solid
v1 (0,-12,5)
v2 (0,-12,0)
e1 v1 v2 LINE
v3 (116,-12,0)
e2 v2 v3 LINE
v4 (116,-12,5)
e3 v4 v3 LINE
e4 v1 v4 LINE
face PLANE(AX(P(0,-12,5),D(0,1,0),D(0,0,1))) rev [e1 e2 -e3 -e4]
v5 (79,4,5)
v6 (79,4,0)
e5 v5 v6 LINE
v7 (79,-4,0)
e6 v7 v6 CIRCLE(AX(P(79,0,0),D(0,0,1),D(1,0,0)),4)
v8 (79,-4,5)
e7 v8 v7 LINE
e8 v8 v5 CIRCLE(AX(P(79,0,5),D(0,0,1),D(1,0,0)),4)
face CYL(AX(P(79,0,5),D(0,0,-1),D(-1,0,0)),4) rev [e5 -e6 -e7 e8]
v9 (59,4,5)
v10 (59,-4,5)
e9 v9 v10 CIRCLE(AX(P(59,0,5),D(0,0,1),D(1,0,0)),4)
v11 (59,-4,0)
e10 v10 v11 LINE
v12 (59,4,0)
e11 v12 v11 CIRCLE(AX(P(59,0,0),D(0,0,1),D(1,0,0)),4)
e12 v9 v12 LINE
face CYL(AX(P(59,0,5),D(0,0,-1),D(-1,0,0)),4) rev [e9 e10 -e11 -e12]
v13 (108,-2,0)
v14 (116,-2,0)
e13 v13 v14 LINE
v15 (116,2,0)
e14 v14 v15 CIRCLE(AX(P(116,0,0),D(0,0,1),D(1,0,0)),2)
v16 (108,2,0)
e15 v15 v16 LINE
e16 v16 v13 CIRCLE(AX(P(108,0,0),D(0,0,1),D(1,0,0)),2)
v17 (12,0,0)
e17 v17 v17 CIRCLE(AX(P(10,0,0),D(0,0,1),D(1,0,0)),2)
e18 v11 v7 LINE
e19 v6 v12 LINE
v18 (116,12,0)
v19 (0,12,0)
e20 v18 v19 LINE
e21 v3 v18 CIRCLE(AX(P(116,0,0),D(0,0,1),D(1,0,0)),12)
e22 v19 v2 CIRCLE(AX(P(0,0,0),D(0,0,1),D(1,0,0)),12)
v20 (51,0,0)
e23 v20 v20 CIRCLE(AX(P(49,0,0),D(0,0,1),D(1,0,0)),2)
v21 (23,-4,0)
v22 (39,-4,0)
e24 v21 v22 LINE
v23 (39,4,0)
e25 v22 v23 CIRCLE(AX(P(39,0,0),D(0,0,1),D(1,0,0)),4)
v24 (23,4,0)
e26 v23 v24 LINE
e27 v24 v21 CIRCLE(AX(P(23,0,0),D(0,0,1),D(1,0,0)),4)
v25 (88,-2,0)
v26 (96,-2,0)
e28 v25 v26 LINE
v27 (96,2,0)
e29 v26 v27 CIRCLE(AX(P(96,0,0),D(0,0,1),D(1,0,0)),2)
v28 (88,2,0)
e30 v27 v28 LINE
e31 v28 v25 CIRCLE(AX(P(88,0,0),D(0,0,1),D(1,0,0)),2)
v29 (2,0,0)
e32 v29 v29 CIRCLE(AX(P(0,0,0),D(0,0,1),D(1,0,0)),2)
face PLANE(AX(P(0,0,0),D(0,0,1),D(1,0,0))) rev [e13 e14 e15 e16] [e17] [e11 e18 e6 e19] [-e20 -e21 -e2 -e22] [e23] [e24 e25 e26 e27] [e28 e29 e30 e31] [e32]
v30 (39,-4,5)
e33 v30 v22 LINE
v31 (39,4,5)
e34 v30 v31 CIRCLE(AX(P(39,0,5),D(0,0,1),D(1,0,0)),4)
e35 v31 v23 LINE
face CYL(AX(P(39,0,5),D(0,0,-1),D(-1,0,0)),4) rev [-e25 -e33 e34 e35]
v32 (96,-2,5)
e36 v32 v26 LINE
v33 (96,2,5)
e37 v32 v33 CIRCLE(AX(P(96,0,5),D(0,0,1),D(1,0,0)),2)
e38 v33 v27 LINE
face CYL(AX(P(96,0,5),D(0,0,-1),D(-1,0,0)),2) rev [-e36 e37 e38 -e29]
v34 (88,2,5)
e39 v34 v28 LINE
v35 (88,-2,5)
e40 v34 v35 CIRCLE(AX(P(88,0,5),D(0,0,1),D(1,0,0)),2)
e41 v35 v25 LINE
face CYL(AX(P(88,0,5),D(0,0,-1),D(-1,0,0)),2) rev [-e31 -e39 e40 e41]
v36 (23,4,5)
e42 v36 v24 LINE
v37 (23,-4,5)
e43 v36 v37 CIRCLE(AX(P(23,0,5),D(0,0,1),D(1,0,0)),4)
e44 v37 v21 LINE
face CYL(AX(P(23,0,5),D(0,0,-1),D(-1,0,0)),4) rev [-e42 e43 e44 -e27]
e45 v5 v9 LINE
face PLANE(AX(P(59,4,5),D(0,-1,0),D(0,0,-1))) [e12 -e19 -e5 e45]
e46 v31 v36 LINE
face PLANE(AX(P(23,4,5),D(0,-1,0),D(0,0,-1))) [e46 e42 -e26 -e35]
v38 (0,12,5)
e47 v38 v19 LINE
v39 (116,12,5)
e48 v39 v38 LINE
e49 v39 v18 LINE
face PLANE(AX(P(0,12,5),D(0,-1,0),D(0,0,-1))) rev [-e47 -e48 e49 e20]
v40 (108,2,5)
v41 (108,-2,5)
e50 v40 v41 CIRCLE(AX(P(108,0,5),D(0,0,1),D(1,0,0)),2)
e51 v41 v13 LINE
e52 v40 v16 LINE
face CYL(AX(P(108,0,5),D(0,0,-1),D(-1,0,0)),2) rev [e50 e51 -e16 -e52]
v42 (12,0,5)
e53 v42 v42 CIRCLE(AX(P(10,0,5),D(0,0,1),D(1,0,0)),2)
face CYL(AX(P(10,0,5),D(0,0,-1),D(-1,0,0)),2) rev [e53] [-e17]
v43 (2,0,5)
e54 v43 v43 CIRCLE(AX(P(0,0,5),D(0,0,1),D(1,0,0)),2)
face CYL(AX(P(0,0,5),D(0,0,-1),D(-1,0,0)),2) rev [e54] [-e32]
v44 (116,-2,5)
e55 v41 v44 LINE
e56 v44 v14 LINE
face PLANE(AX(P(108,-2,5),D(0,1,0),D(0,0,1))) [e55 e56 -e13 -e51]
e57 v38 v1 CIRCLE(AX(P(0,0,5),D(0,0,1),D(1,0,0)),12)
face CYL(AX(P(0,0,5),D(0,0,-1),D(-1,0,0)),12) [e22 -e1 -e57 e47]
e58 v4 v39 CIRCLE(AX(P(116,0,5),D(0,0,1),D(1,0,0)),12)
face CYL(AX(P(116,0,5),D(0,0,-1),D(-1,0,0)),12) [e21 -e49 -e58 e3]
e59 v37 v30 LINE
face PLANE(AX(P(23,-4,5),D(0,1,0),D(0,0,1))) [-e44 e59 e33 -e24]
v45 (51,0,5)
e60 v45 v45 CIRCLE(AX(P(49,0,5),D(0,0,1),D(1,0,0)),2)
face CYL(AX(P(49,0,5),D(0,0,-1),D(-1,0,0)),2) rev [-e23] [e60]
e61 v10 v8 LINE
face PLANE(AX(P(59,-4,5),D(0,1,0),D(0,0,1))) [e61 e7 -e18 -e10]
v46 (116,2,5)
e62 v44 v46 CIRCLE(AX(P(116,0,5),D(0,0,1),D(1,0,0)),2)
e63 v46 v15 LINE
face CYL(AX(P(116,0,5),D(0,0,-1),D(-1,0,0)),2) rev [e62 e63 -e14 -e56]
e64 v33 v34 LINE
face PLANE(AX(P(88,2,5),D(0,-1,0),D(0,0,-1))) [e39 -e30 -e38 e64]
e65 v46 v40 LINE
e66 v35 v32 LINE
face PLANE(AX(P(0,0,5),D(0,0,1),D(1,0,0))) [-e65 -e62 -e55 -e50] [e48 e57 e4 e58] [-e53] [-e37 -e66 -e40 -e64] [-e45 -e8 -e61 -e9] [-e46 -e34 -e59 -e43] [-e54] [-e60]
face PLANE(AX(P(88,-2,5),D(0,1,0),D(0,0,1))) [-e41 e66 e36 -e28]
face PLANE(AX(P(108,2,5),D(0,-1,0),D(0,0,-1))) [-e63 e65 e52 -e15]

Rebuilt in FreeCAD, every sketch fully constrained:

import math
import FreeCAD as App
import Part
import Sketcher

V = App.Vector
Q = App.Units.Quantity

doc = App.newDocument("Part")
params = doc.addObject("Spreadsheet::Sheet", "Params")
for row, (alias, value) in enumerate([
    ("sketch1_diameter", "4 mm"),
    ("sketch1_radius", "12 mm"),
    ("sketch1_radius2", "4 mm"),
    ("sketch1_width", "116 mm"),
    ("sketch1_width2", "8 mm"),
    ("pad1_length", "5 mm"),
], start=1):
    params.set(f"A{row}", alias)
    params.set(f"B{row}", "=" + value)
    params.setAlias(f"B{row}", alias)

body = doc.addObject("PartDesign::Body", "Body")

# Sketch on XY plane
sketch1 = body.newObject("Sketcher::SketchObject", "Sketch")
sketch1.AttachmentSupport = (doc.getObject("XY_Plane"), [""])
sketch1.MapMode = "FlatFace"
sketch1.addGeometry(Part.LineSegment(V(116, 12, 0), V(0, 12, 0)), False)
sketch1.addGeometry(Part.ArcOfCircle(Part.Circle(V(0, 0, 0), V(0, 0, 1), 12), math.radians(90), math.radians(270)), False)
sketch1.addGeometry(Part.LineSegment(V(0, -12, 0), V(116, -12, 0)), False)
sketch1.addGeometry(Part.ArcOfCircle(Part.Circle(V(116, 0, 0), V(0, 0, 1), 12), math.radians(-90), math.radians(90)), False)
sketch1.addGeometry(Part.LineSegment(V(108, 2, 0), V(116, 2, 0)), False)
sketch1.addGeometry(Part.ArcOfCircle(Part.Circle(V(116, 0, 0), V(0, 0, 1), 2), math.radians(-90), math.radians(90)), False)
sketch1.addGeometry(Part.LineSegment(V(116, -2, 0), V(108, -2, 0)), False)
sketch1.addGeometry(Part.ArcOfCircle(Part.Circle(V(108, 0, 0), V(0, 0, 1), 2), math.radians(90), math.radians(270)), False)
sketch1.addGeometry(Part.LineSegment(V(88, 2, 0), V(96, 2, 0)), False)
sketch1.addGeometry(Part.ArcOfCircle(Part.Circle(V(96, 0, 0), V(0, 0, 1), 2), math.radians(-90), math.radians(90)), False)
sketch1.addGeometry(Part.LineSegment(V(96, -2, 0), V(88, -2, 0)), False)
sketch1.addGeometry(Part.ArcOfCircle(Part.Circle(V(88, 0, 0), V(0, 0, 1), 2), math.radians(90), math.radians(270)), False)
sketch1.addGeometry(Part.LineSegment(V(59, 4, 0), V(79, 4, 0)), False)
sketch1.addGeometry(Part.ArcOfCircle(Part.Circle(V(79, 0, 0), V(0, 0, 1), 4), math.radians(-90), math.radians(90)), False)
sketch1.addGeometry(Part.LineSegment(V(79, -4, 0), V(59, -4, 0)), False)
sketch1.addGeometry(Part.ArcOfCircle(Part.Circle(V(59, 0, 0), V(0, 0, 1), 4), math.radians(90), math.radians(270)), False)
sketch1.addGeometry(Part.Circle(V(49, 0, 0), V(0, 0, 1), 2), False)
sketch1.addGeometry(Part.LineSegment(V(23, 4, 0), V(39, 4, 0)), False)
sketch1.addGeometry(Part.ArcOfCircle(Part.Circle(V(39, 0, 0), V(0, 0, 1), 4), math.radians(-90), math.radians(90)), False)
sketch1.addGeometry(Part.LineSegment(V(39, -4, 0), V(23, -4, 0)), False)
sketch1.addGeometry(Part.ArcOfCircle(Part.Circle(V(23, 0, 0), V(0, 0, 1), 4), math.radians(90), math.radians(270)), False)
sketch1.addGeometry(Part.Circle(V(10, 0, 0), V(0, 0, 1), 2), False)
sketch1.addGeometry(Part.Circle(V(0, 0, 0), V(0, 0, 1), 2), False)
sketch1.addConstraint(Sketcher.Constraint("Tangent", 0, 2, 1, 1))
sketch1.addConstraint(Sketcher.Constraint("Tangent", 1, 2, 2, 1))
sketch1.addConstraint(Sketcher.Constraint("Tangent", 2, 2, 3, 1))
sketch1.addConstraint(Sketcher.Constraint("Tangent", 3, 2, 0, 1))
sketch1.addConstraint(Sketcher.Constraint("Tangent", 4, 2, 5, 2))
sketch1.addConstraint(Sketcher.Constraint("Tangent", 5, 1, 6, 1))
sketch1.addConstraint(Sketcher.Constraint("Tangent", 6, 2, 7, 2))
sketch1.addConstraint(Sketcher.Constraint("Tangent", 7, 1, 4, 1))
sketch1.addConstraint(Sketcher.Constraint("Tangent", 8, 2, 9, 2))
sketch1.addConstraint(Sketcher.Constraint("Tangent", 9, 1, 10, 1))
sketch1.addConstraint(Sketcher.Constraint("Tangent", 10, 2, 11, 2))
sketch1.addConstraint(Sketcher.Constraint("Tangent", 11, 1, 8, 1))
sketch1.addConstraint(Sketcher.Constraint("Tangent", 12, 2, 13, 2))
sketch1.addConstraint(Sketcher.Constraint("Tangent", 13, 1, 14, 1))
sketch1.addConstraint(Sketcher.Constraint("Tangent", 14, 2, 15, 2))
sketch1.addConstraint(Sketcher.Constraint("Tangent", 15, 1, 12, 1))
sketch1.addConstraint(Sketcher.Constraint("Tangent", 17, 2, 18, 2))
sketch1.addConstraint(Sketcher.Constraint("Tangent", 18, 1, 19, 1))
sketch1.addConstraint(Sketcher.Constraint("Tangent", 19, 2, 20, 2))
sketch1.addConstraint(Sketcher.Constraint("Tangent", 20, 1, 17, 1))
sketch1.addConstraint(Sketcher.Constraint("Horizontal", 0))
sketch1.addConstraint(Sketcher.Constraint("Horizontal", 2))
sketch1.addConstraint(Sketcher.Constraint("Horizontal", 4))
sketch1.addConstraint(Sketcher.Constraint("Horizontal", 6))
sketch1.addConstraint(Sketcher.Constraint("Horizontal", 8))
sketch1.addConstraint(Sketcher.Constraint("Horizontal", 10))
sketch1.addConstraint(Sketcher.Constraint("Horizontal", 12))
sketch1.addConstraint(Sketcher.Constraint("Horizontal", 14))
sketch1.addConstraint(Sketcher.Constraint("Horizontal", 17))
sketch1.addConstraint(Sketcher.Constraint("Horizontal", 19))
sketch1.addConstraint(Sketcher.Constraint("Coincident", 1, 3, -1, 1))
sketch1.addConstraint(Sketcher.Constraint("Coincident", 22, 3, -1, 1))
sketch1.addConstraint(Sketcher.Constraint("Coincident", 5, 3, 3, 3))
sketch1.addConstraint(Sketcher.Constraint("Equal", 7, 9))
sketch1.addConstraint(Sketcher.Constraint("Equal", 11, 16))
sketch1.addConstraint(Sketcher.Constraint("Equal", 15, 18))
sketch1.addConstraint(Sketcher.Constraint("Equal", 16, 21))
sketch1.addConstraint(Sketcher.Constraint("Equal", 21, 22))
sketch1.addConstraint(Sketcher.Constraint("PointOnObject", 9, 3, -1))
sketch1.addConstraint(Sketcher.Constraint("PointOnObject", 13, 3, -1))
sketch1.addConstraint(Sketcher.Constraint("PointOnObject", 16, 3, -1))
sketch1.addConstraint(Sketcher.Constraint("PointOnObject", 18, 3, -1))
sketch1.addConstraint(Sketcher.Constraint("PointOnObject", 21, 3, -1))
sketch1.addConstraint(Sketcher.Constraint("Equal", 6, 8))
sketch1.addConstraint(Sketcher.Constraint("Diameter", 16, Q("4 mm")))
sketch1.addConstraint(Sketcher.Constraint("Radius", 1, Q("12 mm")))
sketch1.addConstraint(Sketcher.Constraint("Radius", 13, Q("4 mm")))
sketch1.addConstraint(Sketcher.Constraint("DistanceX", 0, 2, 0, 1, Q("116 mm")))
sketch1.addConstraint(Sketcher.Constraint("DistanceX", 4, 1, 4, 2, Q("8 mm")))
sketch1.addConstraint(Sketcher.Constraint("DistanceX", 12, 1, 12, 2, Q("20 mm")))
sketch1.addConstraint(Sketcher.Constraint("DistanceX", 17, 1, 17, 2, Q("16 mm")))
sketch1.addConstraint(Sketcher.Constraint("DistanceX", -1, 1, 9, 3, Q("96 mm")))
sketch1.addConstraint(Sketcher.Constraint("DistanceX", -1, 1, 13, 3, Q("79 mm")))
sketch1.addConstraint(Sketcher.Constraint("DistanceX", -1, 1, 16, 3, Q("49 mm")))
sketch1.addConstraint(Sketcher.Constraint("DistanceX", -1, 1, 18, 3, Q("39 mm")))
sketch1.addConstraint(Sketcher.Constraint("DistanceX", -1, 1, 21, 3, Q("10 mm")))
sketch1.setExpression("Constraints[44]", "Params.sketch1_diameter")
sketch1.setExpression("Constraints[45]", "Params.sketch1_radius")
sketch1.setExpression("Constraints[46]", "Params.sketch1_radius2")
sketch1.setExpression("Constraints[47]", "Params.sketch1_width")
sketch1.setExpression("Constraints[48]", "Params.sketch1_width2")
pad1 = body.newObject("PartDesign::Pad", "Pad")
pad1.Profile = sketch1
pad1.setExpression("Length", "Params.pad1_length")

doc.recompute()
